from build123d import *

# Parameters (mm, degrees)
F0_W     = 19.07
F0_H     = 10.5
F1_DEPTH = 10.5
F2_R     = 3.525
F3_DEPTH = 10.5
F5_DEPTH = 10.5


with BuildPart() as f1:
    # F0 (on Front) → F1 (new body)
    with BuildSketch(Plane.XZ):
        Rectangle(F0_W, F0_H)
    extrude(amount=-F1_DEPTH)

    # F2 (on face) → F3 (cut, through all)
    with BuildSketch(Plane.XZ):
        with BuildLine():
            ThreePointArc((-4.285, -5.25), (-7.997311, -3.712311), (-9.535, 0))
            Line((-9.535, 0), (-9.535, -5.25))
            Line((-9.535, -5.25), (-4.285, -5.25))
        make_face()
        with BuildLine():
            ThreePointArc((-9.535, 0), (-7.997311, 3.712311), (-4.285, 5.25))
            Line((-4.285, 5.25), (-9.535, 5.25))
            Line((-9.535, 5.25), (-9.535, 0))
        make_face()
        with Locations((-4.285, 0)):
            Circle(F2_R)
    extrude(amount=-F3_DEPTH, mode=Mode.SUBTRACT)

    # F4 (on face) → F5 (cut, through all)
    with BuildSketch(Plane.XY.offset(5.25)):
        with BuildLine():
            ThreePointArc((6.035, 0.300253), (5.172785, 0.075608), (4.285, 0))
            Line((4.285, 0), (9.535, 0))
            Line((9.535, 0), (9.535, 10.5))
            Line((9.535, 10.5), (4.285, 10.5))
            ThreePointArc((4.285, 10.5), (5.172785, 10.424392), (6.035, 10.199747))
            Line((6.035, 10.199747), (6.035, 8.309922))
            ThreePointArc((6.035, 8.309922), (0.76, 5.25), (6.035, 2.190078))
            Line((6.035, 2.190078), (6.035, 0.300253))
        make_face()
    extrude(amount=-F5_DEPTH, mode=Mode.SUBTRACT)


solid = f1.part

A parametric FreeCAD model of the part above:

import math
import FreeCAD as App
import Part
import Sketcher

V = App.Vector


def add_polygon(sketch, points):
    """Adds a closed chain of lines whose ends are joined by coincident constraints."""
    first, n = sketch.GeometryCount, len(points)
    for a, b in zip(points, points[1:] + points[:1]):
        sketch.addGeometry(Part.LineSegment(App.Vector(*a, 0), App.Vector(*b, 0)), False)
    for i in range(n):
        sketch.addConstraint(Sketcher.Constraint("Coincident", first + i, 2, first + (i + 1) % n, 1))

doc = App.newDocument("Part")
params = doc.addObject("Spreadsheet::Sheet", "Params")
for row, (alias, value) in enumerate([
    ("sketch1_height", "10.5 mm"),
    ("sketch1_width", "19.07 mm"),
    ("pad1_length", "10.5 mm"),
    ("sketch2_diameter", "7.05 mm"),
    ("sketch2_radius", "5.249999 mm"),
    ("sketch3_height", "10.5 mm"),
    ("sketch3_width", "5.25 mm"),
], start=1):
    params.set(f"A{row}", alias)
    params.set(f"B{row}", "=" + value)
    params.setAlias(f"B{row}", alias)

body = doc.addObject("PartDesign::Body", "Body")

sketch1 = body.newObject("Sketcher::SketchObject", "Sketch")
sketch1.AttachmentSupport = (doc.getObject("XZ_Plane"), [""])
sketch1.MapMode = "FlatFace"
add_polygon(sketch1, [(-10, 5), (-10, -5), (10, -5), (10, 5)])
sketch1.addConstraint(Sketcher.Constraint("Vertical", 0))
sketch1.addConstraint(Sketcher.Constraint("Horizontal", 1))
sketch1.addConstraint(Sketcher.Constraint("Vertical", 2))
sketch1.addConstraint(Sketcher.Constraint("Horizontal", 3))
sketch1.addConstraint(Sketcher.Constraint("Symmetric", 0, 2, 2, 2, -1, 1))
sketch1.addConstraint(Sketcher.Constraint("DistanceY", 0, 2, 0, 1, 10.5))
sketch1.addConstraint(Sketcher.Constraint("DistanceX", 1, 1, 1, 2, 19.07))
sketch1.setExpression("Constraints[9]", "Params.sketch1_height")
sketch1.setExpression("Constraints[10]", "Params.sketch1_width")
pad1 = body.newObject("PartDesign::Pad", "Pad")
pad1.Profile = sketch1
pad1.setExpression("Length", "Params.pad1_length")
pad1.Reversed = True

sketch2 = body.newObject("Sketcher::SketchObject", "Sketch001")
sketch2.AttachmentSupport = (doc.getObject("XZ_Plane"), [""])
sketch2.MapMode = "FlatFace"
sketch2.addGeometry(Part.ArcOfCircle(Part.Circle(V(-4.3, 0, 0), V(0, 0, 1), 5.2), math.radians(180), math.radians(270)), False)
sketch2.addGeometry(Part.LineSegment(V(-9.5, 0, 0), V(-9.5, -5.2, 0)), False)
sketch2.addGeometry(Part.LineSegment(V(-9.5, -5.2, 0), V(-4.3, -5.2, 0)), False)
sketch2.addGeometry(Part.ArcOfCircle(Part.Circle(V(-4.3, 0, 0), V(0, 0, 1), 5.2), math.radians(90), math.radians(180)), False)
sketch2.addGeometry(Part.LineSegment(V(-4.3, 5.2, 0), V(-9.5, 5.2, 0)), False)
sketch2.addGeometry(Part.LineSegment(V(-9.5, 5.2, 0), V(-9.5, 0, 0)), False)
sketch2.addGeometry(Part.Circle(V(-4.3, 0, 0), V(0, 0, 1), 3.5), False)
sketch2.addConstraint(Sketcher.Constraint("Tangent", 0, 1, 1, 1))
sketch2.addConstraint(Sketcher.Constraint("Coincident", 1, 2, 2, 1))
sketch2.addConstraint(Sketcher.Constraint("Tangent", 2, 2, 0, 2))
sketch2.addConstraint(Sketcher.Constraint("Tangent", 3, 1, 4, 1))
sketch2.addConstraint(Sketcher.Constraint("Coincident", 4, 2, 5, 1))
sketch2.addConstraint(Sketcher.Constraint("Tangent", 5, 2, 3, 2))
sketch2.addConstraint(Sketcher.Constraint("Vertical", 1))
sketch2.addConstraint(Sketcher.Constraint("Horizontal", 2))
sketch2.addConstraint(Sketcher.Constraint("Horizontal", 4))
sketch2.addConstraint(Sketcher.Constraint("Vertical", 5))
sketch2.addConstraint(Sketcher.Constraint("Coincident", 3, 3, 0, 3))
sketch2.addConstraint(Sketcher.Constraint("Coincident", 6, 3, 0, 3))
sketch2.addConstraint(Sketcher.Constraint("Equal", 0, 3))
sketch2.addConstraint(Sketcher.Constraint("PointOnObject", 0, 3, -1))
sketch2.addConstraint(Sketcher.Constraint("Diameter", 6, 7.05))
sketch2.addConstraint(Sketcher.Constraint("Radius", 0, 5.249999))
sketch2.addConstraint(Sketcher.Constraint("DistanceX", 0, 3, -1, 1, 4.285001))
sketch2.setExpression("Constraints[14]", "Params.sketch2_diameter")
sketch2.setExpression("Constraints[15]", "Params.sketch2_radius")
pocket1 = body.newObject("PartDesign::Pocket", "Pocket")
pocket1.Profile = sketch2
pocket1.Type = "ThroughAll"

sketch3 = body.newObject("Sketcher::SketchObject", "Sketch002")
sketch3.AttachmentSupport = (doc.getObject("XY_Plane"), [""])
sketch3.MapMode = "FlatFace"
sketch3.AttachmentOffset = App.Placement(V(0, 0, 5.25), App.Rotation())
sketch3.addGeometry(Part.ArcOfCircle(Part.Circle(V(4.3, 5.3, 0), V(0, 0, 1), 5.3), math.radians(-90), math.radians(-70.53)), False)
sketch3.addGeometry(Part.LineSegment(V(4.3, 0, 0), V(9.5, 0, 0)), False)
sketch3.addGeometry(Part.LineSegment(V(9.5, 0, 0), V(9.5, 10.5, 0)), False)
sketch3.addGeometry(Part.LineSegment(V(9.5, 10.5, 0), V(4.3, 10.5, 0)), False)
sketch3.addGeometry(Part.ArcOfCircle(Part.Circle(V(4.3, 5.2, 0), V(0, 0, 1), 5.3), math.radians(70.53), math.radians(90)), False)
sketch3.addGeometry(Part.LineSegment(V(6, 10.2, 0), V(6, 8.3, 0)), False)
sketch3.addGeometry(Part.ArcOfCircle(Part.Circle(V(4.3, 5.2, 0), V(0, 0, 1), 3.5), math.radians(60), math.radians(300)), False)
sketch3.addGeometry(Part.LineSegment(V(6, 2.2, 0), V(6, 0.3, 0)), False)
sketch3.addConstraint(Sketcher.Constraint("Tangent", 0, 1, 1, 1))
sketch3.addConstraint(Sketcher.Constraint("Coincident", 1, 2, 2, 1))
sketch3.addConstraint(Sketcher.Constraint("Coincident", 2, 2, 3, 1))
sketch3.addConstraint(Sketcher.Constraint("Tangent", 3, 2, 4, 2))
sketch3.addConstraint(Sketcher.Constraint("Coincident", 4, 1, 5, 1))
sketch3.addConstraint(Sketcher.Constraint("Coincident", 5, 2, 6, 1))
sketch3.addConstraint(Sketcher.Constraint("Coincident", 6, 2, 7, 1))
sketch3.addConstraint(Sketcher.Constraint("Coincident", 7, 2, 0, 2))
sketch3.addConstraint(Sketcher.Constraint("Horizontal", 1))
sketch3.addConstraint(Sketcher.Constraint("Vertical", 2))
sketch3.addConstraint(Sketcher.Constraint("Horizontal", 3))
sketch3.addConstraint(Sketcher.Constraint("Vertical", 5))
sketch3.addConstraint(Sketcher.Constraint("Vertical", 7))
sketch3.addConstraint(Sketcher.Constraint("Equal", 0, 4))
sketch3.addConstraint(Sketcher.Constraint("PointOnObject", 0, 1, -1))
sketch3.addConstraint(Sketcher.Constraint("Vertical", 0, 3, 4, 3))
sketch3.addConstraint(Sketcher.Constraint("Vertical", 6, 3, 0, 1))
sketch3.addConstraint(Sketcher.Constraint("Vertical", 5, 2, 6, 2))
sketch3.addConstraint(Sketcher.Constraint("Equal", 5, 7))
sketch3.addConstraint(Sketcher.Constraint("DistanceY", 2, 1, 2, 2, 10.5))
sketch3.addConstraint(Sketcher.Constraint("Radius", 6, 3.525))
sketch3.addConstraint(Sketcher.Constraint("DistanceX", 1, 1, 1, 2, 5.25))
sketch3.addConstraint(Sketcher.Constraint("DistanceX", 4, 1, 2, 2, 3.5))
sketch3.addConstraint(Sketcher.Constraint("Radius", 0, 5.250019))
sketch3.addConstraint(Sketcher.Constraint("DistanceX", -1, 1, 6, 3, 4.285))
sketch3.setExpression("Constraints[19]", "Params.sketch3_height")
sketch3.setExpression("Constraints[21]", "Params.sketch3_width")
pocket2 = body.newObject("PartDesign::Pocket", "Pocket001")
pocket2.Profile = sketch3
pocket2.Type = "ThroughAll"

doc.recompute()
